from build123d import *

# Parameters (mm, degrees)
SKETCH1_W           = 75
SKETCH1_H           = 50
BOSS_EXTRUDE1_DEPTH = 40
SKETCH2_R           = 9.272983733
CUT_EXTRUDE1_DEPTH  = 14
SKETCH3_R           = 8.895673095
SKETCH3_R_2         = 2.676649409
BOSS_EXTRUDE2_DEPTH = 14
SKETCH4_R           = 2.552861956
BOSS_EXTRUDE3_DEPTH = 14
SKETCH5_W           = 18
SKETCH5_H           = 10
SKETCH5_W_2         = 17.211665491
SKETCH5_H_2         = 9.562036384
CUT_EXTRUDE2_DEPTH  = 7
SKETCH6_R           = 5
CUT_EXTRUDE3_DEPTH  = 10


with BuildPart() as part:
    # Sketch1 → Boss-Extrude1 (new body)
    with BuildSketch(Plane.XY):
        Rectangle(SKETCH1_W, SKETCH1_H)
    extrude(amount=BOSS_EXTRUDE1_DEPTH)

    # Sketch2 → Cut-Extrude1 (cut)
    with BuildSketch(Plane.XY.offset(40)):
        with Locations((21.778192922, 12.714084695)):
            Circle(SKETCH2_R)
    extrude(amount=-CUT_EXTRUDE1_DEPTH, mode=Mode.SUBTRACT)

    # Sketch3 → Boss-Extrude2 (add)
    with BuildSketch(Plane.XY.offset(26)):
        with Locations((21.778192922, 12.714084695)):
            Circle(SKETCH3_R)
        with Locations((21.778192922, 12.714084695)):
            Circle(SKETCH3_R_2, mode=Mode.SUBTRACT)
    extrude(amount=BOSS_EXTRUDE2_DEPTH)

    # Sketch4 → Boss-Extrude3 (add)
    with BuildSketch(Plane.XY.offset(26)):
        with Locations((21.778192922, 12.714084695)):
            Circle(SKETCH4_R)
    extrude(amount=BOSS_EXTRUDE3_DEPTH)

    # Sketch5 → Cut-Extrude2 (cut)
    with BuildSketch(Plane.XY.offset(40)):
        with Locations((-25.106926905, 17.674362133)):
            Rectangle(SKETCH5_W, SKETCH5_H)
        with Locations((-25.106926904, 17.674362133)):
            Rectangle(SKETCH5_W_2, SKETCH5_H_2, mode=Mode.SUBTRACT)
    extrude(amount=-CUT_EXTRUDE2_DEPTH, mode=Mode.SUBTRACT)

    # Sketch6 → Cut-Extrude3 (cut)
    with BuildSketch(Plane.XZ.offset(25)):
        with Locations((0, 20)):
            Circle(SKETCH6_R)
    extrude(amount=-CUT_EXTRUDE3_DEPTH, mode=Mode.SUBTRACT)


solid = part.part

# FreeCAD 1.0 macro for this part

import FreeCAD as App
import Part
import Sketcher
from FreeCAD import Vector


def add_polygon(sketch, points):
    """Adds a closed chain of lines whose ends are joined by coincident constraints."""
    first, n = sketch.GeometryCount, len(points)
    for a, b in zip(points, points[1:] + points[:1]):
        sketch.addGeometry(Part.LineSegment(App.Vector(*a, 0), App.Vector(*b, 0)), False)
    for i in range(n):
        sketch.addConstraint(Sketcher.Constraint("Coincident", first + i, 2, first + (i + 1) % n, 1))

doc = App.newDocument("Part")
params = doc.addObject("Spreadsheet::Sheet", "Params")
for row, (alias, value) in enumerate([
    ("sketch1_width", "75 mm"),
    ("sketch1_height", "50 mm"),
    ("pad1_length", "40 mm"),
    ("pocket1_length", "14 mm"),
    ("pad2_length", "14 mm"),
    ("pad3_length", "14 mm"),
    ("sketch5_width", "18 mm"),
    ("sketch5_height", "10 mm"),
    ("pocket2_length", "7 mm"),
    ("sketch6_diameter", "10 mm"),
    ("pocket3_length", "10 mm"),
], start=1):
    params.set(f"A{row}", alias)
    params.set(f"B{row}", "=" + value)
    params.setAlias(f"B{row}", alias)

body = doc.addObject("PartDesign::Body", "Body")

# Sketch on XY plane
sketch1 = body.newObject("Sketcher::SketchObject", "Sketch")
sketch1.AttachmentSupport = (doc.getObject("XY_Plane"), [""])
sketch1.MapMode = "FlatFace"
add_polygon(sketch1, [(-38, 25), (-38, -25), (38, -25), (38, 25)])  # lines 0-3
sketch1.addConstraint([
    Sketcher.Constraint("Vertical", 0),
    Sketcher.Constraint("Horizontal", 1),
    Sketcher.Constraint("Vertical", 2),
    Sketcher.Constraint("Horizontal", 3),
    Sketcher.Constraint("Symmetric", 0, 2, 2, 2, -1, 1),
    Sketcher.Constraint("DistanceX", 1, 1, 1, 2, 75.0),
    Sketcher.Constraint("DistanceY", 0, 2, 0, 1, 50.0),
])
sketch1.setExpression("Constraints[9]", "Params.sketch1_width")
sketch1.setExpression("Constraints[10]", "Params.sketch1_height")
pad1 = body.newObject("PartDesign::Pad", "Pad")
pad1.Profile = sketch1
pad1.setExpression("Length", "Params.pad1_length")

# Sketch on XY plane
sketch2 = body.newObject("Sketcher::SketchObject", "Sketch001")
sketch2.AttachmentSupport = (doc.getObject("XY_Plane"), [""])
sketch2.MapMode = "FlatFace"
sketch2.AttachmentOffset = App.Placement(Vector(0, 0, 40), App.Rotation())
sketch2.addGeometry(Part.Circle(Vector(22, 13, 0), Vector(0, 0, 1), 9), False)
sketch2.addConstraint([
    Sketcher.Constraint("Diameter", 0, 18.545967),
    Sketcher.Constraint("DistanceX", -1, 1, 0, 3, 21.778193),
    Sketcher.Constraint("DistanceY", -1, 1, 0, 3, 12.714085),
])
pocket1 = body.newObject("PartDesign::Pocket", "Pocket")
pocket1.Profile = sketch2
pocket1.setExpression("Length", "Params.pocket1_length")

# Sketch on XY plane
sketch3 = body.newObject("Sketcher::SketchObject", "Sketch002")
sketch3.AttachmentSupport = (doc.getObject("XY_Plane"), [""])
sketch3.MapMode = "FlatFace"
sketch3.AttachmentOffset = App.Placement(Vector(0, 0, 26), App.Rotation())
sketch3.addGeometry([
    Part.Circle(Vector(21.8, 12.7, 0), Vector(0, 0, 1), 8.9),
    Part.Circle(Vector(21.8, 12.7, 0), Vector(0, 0, 1), 2.7),
], False)
sketch3.addConstraint([
    Sketcher.Constraint("Coincident", 1, 3, 0, 3),
    Sketcher.Constraint("Diameter", 1, 5.353299),
    Sketcher.Constraint("Diameter", 0, 17.791346),
    Sketcher.Constraint("DistanceX", -1, 1, 0, 3, 21.778193),
    Sketcher.Constraint("DistanceY", -1, 1, 0, 3, 12.714085),
])
pad2 = body.newObject("PartDesign::Pad", "Pad001")
pad2.Profile = sketch3
pad2.setExpression("Length", "Params.pad2_length")

# Sketch on XY plane
sketch4 = body.newObject("Sketcher::SketchObject", "Sketch003")
sketch4.AttachmentSupport = (doc.getObject("XY_Plane"), [""])
sketch4.MapMode = "FlatFace"
sketch4.AttachmentOffset = App.Placement(Vector(0, 0, 26), App.Rotation())
sketch4.addGeometry(Part.Circle(Vector(21.8, 12.7, 0), Vector(0, 0, 1), 2.6), False)
sketch4.addConstraint([
    Sketcher.Constraint("Diameter", 0, 5.105724),
    Sketcher.Constraint("DistanceX", -1, 1, 0, 3, 21.778193),
    Sketcher.Constraint("DistanceY", -1, 1, 0, 3, 12.714085),
])
pad3 = body.newObject("PartDesign::Pad", "Pad002")
pad3.Profile = sketch4
pad3.setExpression("Length", "Params.pad3_length")

# Sketch on XY plane
sketch5 = body.newObject("Sketcher::SketchObject", "Sketch004")
sketch5.AttachmentSupport = (doc.getObject("XY_Plane"), [""])
sketch5.MapMode = "FlatFace"
sketch5.AttachmentOffset = App.Placement(Vector(0, 0, 40), App.Rotation())
add_polygon(sketch5, [(-34, 23), (-34, 13), (-16, 13), (-16, 23)])  # lines 0-3
add_polygon(sketch5, [(-17, 13), (-34, 13), (-34, 22), (-17, 22)])  # lines 4-7
sketch5.addConstraint([
    Sketcher.Constraint("Vertical", 0),
    Sketcher.Constraint("Horizontal", 1),
    Sketcher.Constraint("Vertical", 2),
    Sketcher.Constraint("Horizontal", 3),
    Sketcher.Constraint("Horizontal", 4),
    Sketcher.Constraint("Vertical", 5),
    Sketcher.Constraint("Horizontal", 6),
    Sketcher.Constraint("Vertical", 7),
    Sketcher.Constraint("DistanceX", 1, 1, 1, 2, 18.0),
    Sketcher.Constraint("DistanceY", 0, 2, 0, 1, 10.0),
    Sketcher.Constraint("DistanceX", 4, 2, 4, 1, 17.211665),
    Sketcher.Constraint("DistanceY", 5, 1, 5, 2, 9.562036),
    Sketcher.Constraint("DistanceX", 4, 2, -1, 1, 33.71276),
    Sketcher.Constraint("DistanceY", -1, 1, 5, 2, 22.45538),
    Sketcher.Constraint("DistanceY", 0, 2, 4, 2, 0.218982),
    Sketcher.Constraint("DistanceX", 0, 2, -1, 1, 34.106927),
])
sketch5.setExpression("Constraints[16]", "Params.sketch5_width")
sketch5.setExpression("Constraints[17]", "Params.sketch5_height")
pocket2 = body.newObject("PartDesign::Pocket", "Pocket001")
pocket2.Profile = sketch5
pocket2.setExpression("Length", "Params.pocket2_length")

# Sketch on XZ plane
sketch6 = body.newObject("Sketcher::SketchObject", "Sketch005")
sketch6.AttachmentSupport = (doc.getObject("XZ_Plane"), [""])
sketch6.MapMode = "FlatFace"
sketch6.AttachmentOffset = App.Placement(Vector(0, 0, 25), App.Rotation())
sketch6.addGeometry(Part.Circle(Vector(0, 20, 0), Vector(0, 0, 1), 5), False)
sketch6.addConstraint([
    Sketcher.Constraint("PointOnObject", 0, 3, -2),
    Sketcher.Constraint("Diameter", 0, 10.0),
    Sketcher.Constraint("DistanceY", -1, 1, 0, 3, 20.0),
])
sketch6.setExpression("Constraints[1]", "Params.sketch6_diameter")
pocket3 = body.newObject("PartDesign::Pocket", "Pocket002")
pocket3.Profile = sketch6
pocket3.setExpression("Length", "Params.pocket3_length")

doc.recompute()
